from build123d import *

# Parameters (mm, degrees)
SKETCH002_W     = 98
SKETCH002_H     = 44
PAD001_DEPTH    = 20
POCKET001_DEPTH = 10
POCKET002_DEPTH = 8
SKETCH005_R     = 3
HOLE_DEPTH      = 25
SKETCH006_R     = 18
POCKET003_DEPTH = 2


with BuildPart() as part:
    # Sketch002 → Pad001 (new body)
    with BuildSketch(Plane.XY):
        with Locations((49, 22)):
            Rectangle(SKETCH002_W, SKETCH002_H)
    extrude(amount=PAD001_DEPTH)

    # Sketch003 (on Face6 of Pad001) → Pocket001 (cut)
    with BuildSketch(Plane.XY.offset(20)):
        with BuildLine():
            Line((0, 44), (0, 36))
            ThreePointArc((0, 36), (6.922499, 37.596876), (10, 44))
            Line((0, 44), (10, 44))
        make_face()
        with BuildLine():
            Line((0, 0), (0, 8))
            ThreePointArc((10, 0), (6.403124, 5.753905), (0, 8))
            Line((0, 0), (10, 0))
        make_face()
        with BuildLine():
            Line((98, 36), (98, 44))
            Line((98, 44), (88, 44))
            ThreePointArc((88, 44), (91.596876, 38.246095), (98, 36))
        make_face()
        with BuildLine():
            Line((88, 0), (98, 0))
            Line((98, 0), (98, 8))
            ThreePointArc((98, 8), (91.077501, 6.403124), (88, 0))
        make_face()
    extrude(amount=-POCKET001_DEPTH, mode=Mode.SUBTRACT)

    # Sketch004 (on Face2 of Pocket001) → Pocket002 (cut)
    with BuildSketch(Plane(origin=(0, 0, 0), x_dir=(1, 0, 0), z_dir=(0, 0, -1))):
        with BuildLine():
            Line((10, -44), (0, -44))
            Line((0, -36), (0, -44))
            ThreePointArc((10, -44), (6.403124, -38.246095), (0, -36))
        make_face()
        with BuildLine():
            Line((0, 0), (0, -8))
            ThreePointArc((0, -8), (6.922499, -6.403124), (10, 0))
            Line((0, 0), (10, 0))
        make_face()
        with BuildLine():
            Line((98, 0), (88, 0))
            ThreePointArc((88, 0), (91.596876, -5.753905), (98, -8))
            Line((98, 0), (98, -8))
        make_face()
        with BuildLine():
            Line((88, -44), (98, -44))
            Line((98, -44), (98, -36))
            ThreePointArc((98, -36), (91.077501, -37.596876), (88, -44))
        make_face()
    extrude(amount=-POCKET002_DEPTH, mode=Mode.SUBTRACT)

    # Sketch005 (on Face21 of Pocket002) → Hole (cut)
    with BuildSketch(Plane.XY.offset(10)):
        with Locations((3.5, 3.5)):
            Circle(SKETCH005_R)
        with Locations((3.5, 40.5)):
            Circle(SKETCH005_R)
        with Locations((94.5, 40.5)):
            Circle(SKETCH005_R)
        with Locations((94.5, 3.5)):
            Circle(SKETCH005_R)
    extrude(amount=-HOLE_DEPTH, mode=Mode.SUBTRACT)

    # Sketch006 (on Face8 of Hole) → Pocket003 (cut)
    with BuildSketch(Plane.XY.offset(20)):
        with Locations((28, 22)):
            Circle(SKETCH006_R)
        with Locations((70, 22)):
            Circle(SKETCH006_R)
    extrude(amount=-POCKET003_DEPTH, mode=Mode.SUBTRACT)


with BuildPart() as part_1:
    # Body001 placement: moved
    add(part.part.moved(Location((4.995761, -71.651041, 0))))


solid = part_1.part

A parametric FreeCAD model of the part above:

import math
import FreeCAD as App
import Part
import Sketcher
from FreeCAD import Vector


def add_polygon(sketch, points):
    """Adds a closed chain of lines whose ends are joined by coincident constraints."""
    first, n = sketch.GeometryCount, len(points)
    for a, b in zip(points, points[1:] + points[:1]):
        sketch.addGeometry(Part.LineSegment(App.Vector(*a, 0), App.Vector(*b, 0)), False)
    for i in range(n):
        sketch.addConstraint(Sketcher.Constraint("Coincident", first + i, 2, first + (i + 1) % n, 1))

doc = App.newDocument("Part")
body = doc.addObject("PartDesign::Body", "Body")

# Sketch on XY plane
sketch1 = body.newObject("Sketcher::SketchObject", "Sketch")
sketch1.AttachmentSupport = (doc.getObject("XY_Plane"), [""])
sketch1.MapMode = "FlatFace"
add_polygon(sketch1, [(0, 44), (0, 0), (98, 0), (98, 44)])  # lines 0-3
sketch1.addConstraint(Sketcher.Constraint("Vertical", 0))
sketch1.addConstraint(Sketcher.Constraint("Horizontal", 1))
sketch1.addConstraint(Sketcher.Constraint("Vertical", 2))
sketch1.addConstraint(Sketcher.Constraint("Horizontal", 3))
sketch1.addConstraint(Sketcher.Constraint("Coincident", 0, 2, -1, 1))
sketch1.addConstraint(Sketcher.Constraint("DistanceX", 1, 1, 1, 2, 98.0))
sketch1.addConstraint(Sketcher.Constraint("DistanceY", 0, 2, 0, 1, 44.0))
pad1 = body.newObject("PartDesign::Pad", "Pad")
pad1.Profile = sketch1
pad1.Length = 20

# Sketch on XY plane
sketch2 = body.newObject("Sketcher::SketchObject", "Sketch001")
sketch2.AttachmentSupport = (doc.getObject("XY_Plane"), [""])
sketch2.MapMode = "FlatFace"
sketch2.AttachmentOffset = App.Placement(Vector(0, 0, 20), App.Rotation())
sketch2.addGeometry(Part.LineSegment(Vector(0, 44, 0), Vector(0, 36, 0)), False)
sketch2.addGeometry(Part.ArcOfCircle(Part.Circle(Vector(2, 44, 0), Vector(0, 0, 1), 8), math.radians(-103), math.radians(0)), False)
sketch2.addGeometry(Part.LineSegment(Vector(10, 44, 0), Vector(0, 44, 0)), False)
sketch2.addGeometry(Part.LineSegment(Vector(0, 8, 0), Vector(0, 0, 0)), False)
sketch2.addGeometry(Part.LineSegment(Vector(0, 0, 0), Vector(10, 0, 0)), False)
sketch2.addGeometry(Part.ArcOfCircle(Part.Circle(Vector(0, -2, 0), Vector(0, 0, 1), 10), math.radians(13), math.radians(90)), False)
sketch2.addGeometry(Part.LineSegment(Vector(98, 36, 0), Vector(98, 44, 0)), False)
sketch2.addGeometry(Part.LineSegment(Vector(98, 44, 0), Vector(88, 44, 0)), False)
sketch2.addGeometry(Part.ArcOfCircle(Part.Circle(Vector(98, 46, 0), Vector(0, 0, 1), 10), math.radians(-167), math.radians(-90)), False)
sketch2.addGeometry(Part.LineSegment(Vector(88, 0, 0), Vector(98, 0, 0)), False)
sketch2.addGeometry(Part.LineSegment(Vector(98, 0, 0), Vector(98, 8, 0)), False)
sketch2.addGeometry(Part.ArcOfCircle(Part.Circle(Vector(96, 0, 0), Vector(0, 0, 1), 8), math.radians(77), math.radians(180)), False)
sketch2.addConstraint(Sketcher.Constraint("Coincident", 0, 2, 1, 1))
sketch2.addConstraint(Sketcher.Constraint("Coincident", 1, 2, 2, 1))
sketch2.addConstraint(Sketcher.Constraint("Coincident", 2, 2, 0, 1))
sketch2.addConstraint(Sketcher.Constraint("Coincident", 3, 2, 4, 1))
sketch2.addConstraint(Sketcher.Constraint("Coincident", 4, 2, 5, 1))
sketch2.addConstraint(Sketcher.Constraint("Coincident", 5, 2, 3, 1))
sketch2.addConstraint(Sketcher.Constraint("Coincident", 6, 2, 7, 1))
sketch2.addConstraint(Sketcher.Constraint("Coincident", 7, 2, 8, 1))
sketch2.addConstraint(Sketcher.Constraint("Coincident", 8, 2, 6, 1))
sketch2.addConstraint(Sketcher.Constraint("Coincident", 9, 2, 10, 1))
sketch2.addConstraint(Sketcher.Constraint("Coincident", 10, 2, 11, 1))
sketch2.addConstraint(Sketcher.Constraint("Coincident", 11, 2, 9, 1))
sketch2.addConstraint(Sketcher.Constraint("Vertical", 0))
sketch2.addConstraint(Sketcher.Constraint("Horizontal", 2))
sketch2.addConstraint(Sketcher.Constraint("Vertical", 3))
sketch2.addConstraint(Sketcher.Constraint("Horizontal", 4))
sketch2.addConstraint(Sketcher.Constraint("Vertical", 6))
sketch2.addConstraint(Sketcher.Constraint("Horizontal", 7))
sketch2.addConstraint(Sketcher.Constraint("Horizontal", 9))
sketch2.addConstraint(Sketcher.Constraint("Vertical", 10))
sketch2.addConstraint(Sketcher.Constraint("Coincident", 3, 2, -1, 1))
sketch2.addConstraint(Sketcher.Constraint("Equal", 5, 8))
sketch2.addConstraint(Sketcher.Constraint("Equal", 1, 11))
sketch2.addConstraint(Sketcher.Constraint("PointOnObject", 5, 3, -2))
sketch2.addConstraint(Sketcher.Constraint("PointOnObject", 11, 3, -1))
sketch2.addConstraint(Sketcher.Constraint("PointOnObject", 0, 2, -2))
sketch2.addConstraint(Sketcher.Constraint("PointOnObject", 9, 2, -1))
sketch2.addConstraint(Sketcher.Constraint("Horizontal", 2, 2, 6, 2))
sketch2.addConstraint(Sketcher.Constraint("Horizontal", 0, 2, 8, 2))
sketch2.addConstraint(Sketcher.Constraint("Horizontal", 5, 2, 10, 2))
sketch2.addConstraint(Sketcher.Constraint("Vertical", 1, 2, 4, 2))
sketch2.addConstraint(Sketcher.Constraint("Vertical", 8, 3, 6, 2))
sketch2.addConstraint(Sketcher.Constraint("Vertical", 8, 2, 9, 2))
sketch2.addConstraint(Sketcher.Constraint("Vertical", 7, 2, 11, 2))
sketch2.addConstraint(Sketcher.Constraint("Equal", 4, 7))
sketch2.addConstraint(Sketcher.Constraint("Radius", 1, 8.200001))
sketch2.addConstraint(Sketcher.Constraint("DistanceX", 2, 2, 2, 1, 10.0))
sketch2.addConstraint(Sketcher.Constraint("DistanceY", -1, 1, 1, 3, 44.000001))
sketch2.addConstraint(Sketcher.Constraint("DistanceX", -1, 1, 8, 3, 98.000001))
pocket1 = body.newObject("PartDesign::Pocket", "Pocket")
pocket1.Profile = sketch2
pocket1.Length = 10

# Sketch on XY plane
sketch3 = body.newObject("Sketcher::SketchObject", "Sketch002")
sketch3.AttachmentSupport = (doc.getObject("XY_Plane"), [""])
sketch3.MapMode = "FlatFace"
sketch3.addGeometry(Part.LineSegment(Vector(0, 44, 0), Vector(10, 44, 0)), False)
sketch3.addGeometry(Part.ArcOfCircle(Part.Circle(Vector(0, 46, 0), Vector(0, 0, 1), 10), math.radians(-90), math.radians(-13)), False)
sketch3.addGeometry(Part.LineSegment(Vector(0, 36, 0), Vector(0, 44, 0)), False)
sketch3.addGeometry(Part.LineSegment(Vector(0, 0, 0), Vector(0, 8, 0)), False)
sketch3.addGeometry(Part.ArcOfCircle(Part.Circle(Vector(2, 0, 0), Vector(0, 0, 1), 8), math.radians(0), math.radians(103)), False)
sketch3.addGeometry(Part.LineSegment(Vector(10, 0, 0), Vector(0, 0, 0)), False)
sketch3.addGeometry(Part.LineSegment(Vector(98, 0, 0), Vector(88, 0, 0)), False)
sketch3.addGeometry(Part.ArcOfCircle(Part.Circle(Vector(98, -2, 0), Vector(0, 0, 1), 10), math.radians(90), math.radians(167)), False)
sketch3.addGeometry(Part.LineSegment(Vector(98, 8, 0), Vector(98, 0, 0)), False)
sketch3.addGeometry(Part.LineSegment(Vector(88, 44, 0), Vector(98, 44, 0)), False)
sketch3.addGeometry(Part.LineSegment(Vector(98, 44, 0), Vector(98, 36, 0)), False)
sketch3.addGeometry(Part.ArcOfCircle(Part.Circle(Vector(96, 44, 0), Vector(0, 0, 1), 8), math.radians(-180), math.radians(-77)), False)
sketch3.addConstraint(Sketcher.Constraint("Coincident", 0, 2, 1, 2))
sketch3.addConstraint(Sketcher.Constraint("Coincident", 1, 1, 2, 1))
sketch3.addConstraint(Sketcher.Constraint("Coincident", 2, 2, 0, 1))
sketch3.addConstraint(Sketcher.Constraint("Coincident", 3, 2, 4, 2))
sketch3.addConstraint(Sketcher.Constraint("Coincident", 4, 1, 5, 1))
sketch3.addConstraint(Sketcher.Constraint("Coincident", 5, 2, 3, 1))
sketch3.addConstraint(Sketcher.Constraint("Coincident", 6, 2, 7, 2))
sketch3.addConstraint(Sketcher.Constraint("Coincident", 7, 1, 8, 1))
sketch3.addConstraint(Sketcher.Constraint("Coincident", 8, 2, 6, 1))
sketch3.addConstraint(Sketcher.Constraint("Coincident", 9, 2, 10, 1))
sketch3.addConstraint(Sketcher.Constraint("Coincident", 10, 2, 11, 2))
sketch3.addConstraint(Sketcher.Constraint("Coincident", 11, 1, 9, 1))
sketch3.addConstraint(Sketcher.Constraint("Horizontal", 0))
sketch3.addConstraint(Sketcher.Constraint("Vertical", 2))
sketch3.addConstraint(Sketcher.Constraint("Vertical", 3))
sketch3.addConstraint(Sketcher.Constraint("Horizontal", 5))
sketch3.addConstraint(Sketcher.Constraint("Horizontal", 6))
sketch3.addConstraint(Sketcher.Constraint("Vertical", 8))
sketch3.addConstraint(Sketcher.Constraint("Horizontal", 9))
sketch3.addConstraint(Sketcher.Constraint("Vertical", 10))
sketch3.addConstraint(Sketcher.Constraint("Coincident", 5, 2, -1, 1))
sketch3.addConstraint(Sketcher.Constraint("Equal", 1, 7))
sketch3.addConstraint(Sketcher.Constraint("Equal", 4, 11))
sketch3.addConstraint(Sketcher.Constraint("PointOnObject", 1, 3, -2))
sketch3.addConstraint(Sketcher.Constraint("PointOnObject", 4, 3, -1))
sketch3.addConstraint(Sketcher.Constraint("PointOnObject", 1, 1, -2))
sketch3.addConstraint(Sketcher.Constraint("PointOnObject", 6, 2, -1))
sketch3.addConstraint(Sketcher.Constraint("Horizontal", 11, 3, 0, 2))
sketch3.addConstraint(Sketcher.Constraint("Horizontal", 3, 2, 7, 1))
sketch3.addConstraint(Sketcher.Constraint("Horizontal", 2, 2, 9, 2))
sketch3.addConstraint(Sketcher.Constraint("Horizontal", 1, 1, 10, 2))
sketch3.addConstraint(Sketcher.Constraint("Vertical", 0, 2, 4, 1))
sketch3.addConstraint(Sketcher.Constraint("Vertical", 8, 2, 9, 2))
sketch3.addConstraint(Sketcher.Constraint("Vertical", 6, 2, 11, 1))
sketch3.addConstraint(Sketcher.Constraint("Equal", 5, 6))
sketch3.addConstraint(Sketcher.Constraint("Radius", 4, 8.200001))
sketch3.addConstraint(Sketcher.Constraint("DistanceX", 0, 1, 0, 2, 10.0))
sketch3.addConstraint(Sketcher.Constraint("DistanceX", -1, 1, 7, 3, 98.000001))
sketch3.addConstraint(Sketcher.Constraint("DistanceY", -1, 1, 11, 3, 44.000001))
pocket2 = body.newObject("PartDesign::Pocket", "Pocket001")
pocket2.Profile = sketch3
pocket2.Length = 8
pocket2.Reversed = True

# Sketch on XY plane
sketch4 = body.newObject("Sketcher::SketchObject", "Sketch003")
sketch4.AttachmentSupport = (doc.getObject("XY_Plane"), [""])
sketch4.MapMode = "FlatFace"
sketch4.AttachmentOffset = App.Placement(Vector(0, 0, 10), App.Rotation())
sketch4.addGeometry(Part.Circle(Vector(3.5, 3.5, 0), Vector(0, 0, 1), 3), False)
sketch4.addGeometry(Part.Circle(Vector(3.5, 40.5, 0), Vector(0, 0, 1), 3), False)
sketch4.addGeometry(Part.Circle(Vector(94.5, 40.5, 0), Vector(0, 0, 1), 3), False)
sketch4.addGeometry(Part.Circle(Vector(94.5, 3.5, 0), Vector(0, 0, 1), 3), False)
sketch4.addConstraint(Sketcher.Constraint("Equal", 0, 1))
sketch4.addConstraint(Sketcher.Constraint("Equal", 1, 2))
sketch4.addConstraint(Sketcher.Constraint("Equal", 2, 3))
sketch4.addConstraint(Sketcher.Constraint("Horizontal", 1, 3, 2, 3))
sketch4.addConstraint(Sketcher.Constraint("Horizontal", 0, 3, 3, 3))
sketch4.addConstraint(Sketcher.Constraint("Vertical", 0, 3, 1, 3))
sketch4.addConstraint(Sketcher.Constraint("Vertical", 2, 3, 3, 3))
sketch4.addConstraint(Sketcher.Constraint("Diameter", 0, 6.0))
sketch4.addConstraint(Sketcher.Constraint("DistanceY", 0, 3, 1, 3, 37.0))
sketch4.addConstraint(Sketcher.Constraint("DistanceX", 1, 3, 2, 3, 91.0))
sketch4.addConstraint(Sketcher.Constraint("DistanceX", -1, 1, 0, 3, 3.5))
sketch4.addConstraint(Sketcher.Constraint("DistanceY", -1, 1, 0, 3, 3.5))
pocket3 = body.newObject("PartDesign::Pocket", "Pocket002")
pocket3.Profile = sketch4
pocket3.Length = 25

# Sketch on XY plane
sketch5 = body.newObject("Sketcher::SketchObject", "Sketch004")
sketch5.AttachmentSupport = (doc.getObject("XY_Plane"), [""])
sketch5.MapMode = "FlatFace"
sketch5.AttachmentOffset = App.Placement(Vector(0, 0, 20), App.Rotation())
sketch5.addGeometry(Part.Circle(Vector(28, 22, 0), Vector(0, 0, 1), 18), False)
sketch5.addGeometry(Part.Circle(Vector(70, 22, 0), Vector(0, 0, 1), 18), False)
sketch5.addConstraint(Sketcher.Constraint("Equal", 0, 1))
sketch5.addConstraint(Sketcher.Constraint("Horizontal", 0, 3, 1, 3))
sketch5.addConstraint(Sketcher.Constraint("Diameter", 0, 36.0))
sketch5.addConstraint(Sketcher.Constraint("DistanceX", -1, 1, 0, 3, 28.0))
sketch5.addConstraint(Sketcher.Constraint("DistanceY", -1, 1, 0, 3, 22.0))
sketch5.addConstraint(Sketcher.Constraint("DistanceX", -1, 1, 1, 3, 70.0))
pocket4 = body.newObject("PartDesign::Pocket", "Pocket003")
pocket4.Profile = sketch5
pocket4.Length = 2
body2 = doc.addObject("PartDesign::Body", "Body001")
doc.recompute()

body.Placement = App.Placement(Vector(4.995761, -71.651041, 0), App.Rotation(Vector(0, 0, 1), 0))
boolean = body2.newObject("PartDesign::Boolean", "Boolean")
boolean.Type = "Fuse"
boolean.addObjects([body])

doc.recompute()
